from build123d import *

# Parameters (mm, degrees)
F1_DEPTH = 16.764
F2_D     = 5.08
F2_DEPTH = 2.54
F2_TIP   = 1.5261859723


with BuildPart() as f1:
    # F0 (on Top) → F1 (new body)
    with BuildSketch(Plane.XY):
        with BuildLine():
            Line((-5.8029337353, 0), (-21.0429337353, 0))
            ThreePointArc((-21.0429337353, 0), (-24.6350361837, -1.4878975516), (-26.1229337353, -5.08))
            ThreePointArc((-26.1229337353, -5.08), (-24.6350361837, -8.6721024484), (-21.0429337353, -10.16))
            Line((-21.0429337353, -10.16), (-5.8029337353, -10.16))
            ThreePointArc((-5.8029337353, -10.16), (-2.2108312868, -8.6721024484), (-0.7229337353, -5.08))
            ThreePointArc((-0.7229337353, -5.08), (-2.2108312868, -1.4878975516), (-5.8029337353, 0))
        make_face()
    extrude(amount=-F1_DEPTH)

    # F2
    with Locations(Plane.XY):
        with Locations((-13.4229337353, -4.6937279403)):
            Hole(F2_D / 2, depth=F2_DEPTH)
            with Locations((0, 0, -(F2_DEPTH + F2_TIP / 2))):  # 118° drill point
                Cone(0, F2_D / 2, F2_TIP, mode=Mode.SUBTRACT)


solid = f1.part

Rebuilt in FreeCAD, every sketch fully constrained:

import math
import FreeCAD as App
import Part
import Sketcher
from FreeCAD import Vector
Q = App.Units.Quantity

doc = App.newDocument("Part")
body = doc.addObject("PartDesign::Body", "Body")

sketch1 = body.newObject("Sketcher::SketchObject", "Sketch")
sketch1.AttachmentSupport = (doc.getObject("XY_Plane"), [""])
sketch1.MapMode = "FlatFace"
sketch1.addGeometry(Part.LineSegment(Vector(-5.802934, 0, 0), Vector(-21.042934, 0, 0)), False)
sketch1.addGeometry(Part.ArcOfCircle(Part.Circle(Vector(-21.042934, -5.08, 0), Vector(0, 0, 1), 5.08), math.radians(90), math.radians(180)), False)
sketch1.addGeometry(Part.ArcOfCircle(Part.Circle(Vector(-21.042934, -5.08, 0), Vector(0, 0, 1), 5.08), math.radians(180), math.radians(270)), False)
sketch1.addGeometry(Part.LineSegment(Vector(-21.042934, -10.16, 0), Vector(-5.802934, -10.16, 0)), False)
sketch1.addGeometry(Part.ArcOfCircle(Part.Circle(Vector(-5.802934, -5.08, 0), Vector(0, 0, 1), 5.08), math.radians(-90), math.radians(0)), False)
sketch1.addGeometry(Part.ArcOfCircle(Part.Circle(Vector(-5.802934, -5.08, 0), Vector(0, 0, 1), 5.08), math.radians(0), math.radians(90)), False)
sketch1.addConstraint(Sketcher.Constraint("Tangent", 0, 2, 1, 1))
sketch1.addConstraint(Sketcher.Constraint("Tangent", 1, 2, 2, 1))
sketch1.addConstraint(Sketcher.Constraint("Tangent", 2, 2, 3, 1))
sketch1.addConstraint(Sketcher.Constraint("Tangent", 3, 2, 4, 1))
sketch1.addConstraint(Sketcher.Constraint("Tangent", 4, 2, 5, 1))
sketch1.addConstraint(Sketcher.Constraint("Tangent", 5, 2, 0, 1))
sketch1.addConstraint(Sketcher.Constraint("Horizontal", 0))
sketch1.addConstraint(Sketcher.Constraint("Horizontal", 3))
sketch1.addConstraint(Sketcher.Constraint("Equal", 1, 2))
sketch1.addConstraint(Sketcher.Constraint("Equal", 2, 4))
sketch1.addConstraint(Sketcher.Constraint("PointOnObject", 0, 2, -1))
sketch1.addConstraint(Sketcher.Constraint("Horizontal", 5, 3, 1, 2))
sketch1.addConstraint(Sketcher.Constraint("Horizontal", 1, 2, 4, 2))
sketch1.addConstraint(Sketcher.Constraint("Radius", 1, Q("0.2 in")))
sketch1.addConstraint(Sketcher.Constraint("DistanceX", 0, 2, 0, 1, Q("0.6 in")))
sketch1.addConstraint(Sketcher.Constraint("DistanceX", 1, 3, -1, 1, 21.042934))
pad1 = body.newObject("PartDesign::Pad", "Pad")
pad1.Profile = sketch1
pad1.Length = Q("0.66 in")
pad1.Reversed = True

sketch2 = body.newObject("Sketcher::SketchObject", "Sketch001")
sketch2.AttachmentSupport = (doc.getObject("XY_Plane"), [""])
sketch2.MapMode = "FlatFace"
sketch2.addGeometry(Part.Circle(Vector(-13.422934, -4.693728, 0), Vector(0, 0, 1), 2.54), False)
sketch2.addConstraint(Sketcher.Constraint("Diameter", 0, Q("0.2 in")))
sketch2.addConstraint(Sketcher.Constraint("DistanceX", 0, 3, -1, 1, 13.422934))
sketch2.addConstraint(Sketcher.Constraint("DistanceY", 0, 3, -1, 1, 4.693728))
doc.recompute()
hole = body.newObject("PartDesign::Hole", "Hole")
hole.Profile = sketch2
hole.ThreadType = "None"
hole.Diameter = Q("0.2 in")
hole.DepthType = "Dimension"
hole.Depth = Q("0.1 in")
hole.DrillPoint = "Angled"
hole.DrillPointAngle = 118

doc.recompute()
